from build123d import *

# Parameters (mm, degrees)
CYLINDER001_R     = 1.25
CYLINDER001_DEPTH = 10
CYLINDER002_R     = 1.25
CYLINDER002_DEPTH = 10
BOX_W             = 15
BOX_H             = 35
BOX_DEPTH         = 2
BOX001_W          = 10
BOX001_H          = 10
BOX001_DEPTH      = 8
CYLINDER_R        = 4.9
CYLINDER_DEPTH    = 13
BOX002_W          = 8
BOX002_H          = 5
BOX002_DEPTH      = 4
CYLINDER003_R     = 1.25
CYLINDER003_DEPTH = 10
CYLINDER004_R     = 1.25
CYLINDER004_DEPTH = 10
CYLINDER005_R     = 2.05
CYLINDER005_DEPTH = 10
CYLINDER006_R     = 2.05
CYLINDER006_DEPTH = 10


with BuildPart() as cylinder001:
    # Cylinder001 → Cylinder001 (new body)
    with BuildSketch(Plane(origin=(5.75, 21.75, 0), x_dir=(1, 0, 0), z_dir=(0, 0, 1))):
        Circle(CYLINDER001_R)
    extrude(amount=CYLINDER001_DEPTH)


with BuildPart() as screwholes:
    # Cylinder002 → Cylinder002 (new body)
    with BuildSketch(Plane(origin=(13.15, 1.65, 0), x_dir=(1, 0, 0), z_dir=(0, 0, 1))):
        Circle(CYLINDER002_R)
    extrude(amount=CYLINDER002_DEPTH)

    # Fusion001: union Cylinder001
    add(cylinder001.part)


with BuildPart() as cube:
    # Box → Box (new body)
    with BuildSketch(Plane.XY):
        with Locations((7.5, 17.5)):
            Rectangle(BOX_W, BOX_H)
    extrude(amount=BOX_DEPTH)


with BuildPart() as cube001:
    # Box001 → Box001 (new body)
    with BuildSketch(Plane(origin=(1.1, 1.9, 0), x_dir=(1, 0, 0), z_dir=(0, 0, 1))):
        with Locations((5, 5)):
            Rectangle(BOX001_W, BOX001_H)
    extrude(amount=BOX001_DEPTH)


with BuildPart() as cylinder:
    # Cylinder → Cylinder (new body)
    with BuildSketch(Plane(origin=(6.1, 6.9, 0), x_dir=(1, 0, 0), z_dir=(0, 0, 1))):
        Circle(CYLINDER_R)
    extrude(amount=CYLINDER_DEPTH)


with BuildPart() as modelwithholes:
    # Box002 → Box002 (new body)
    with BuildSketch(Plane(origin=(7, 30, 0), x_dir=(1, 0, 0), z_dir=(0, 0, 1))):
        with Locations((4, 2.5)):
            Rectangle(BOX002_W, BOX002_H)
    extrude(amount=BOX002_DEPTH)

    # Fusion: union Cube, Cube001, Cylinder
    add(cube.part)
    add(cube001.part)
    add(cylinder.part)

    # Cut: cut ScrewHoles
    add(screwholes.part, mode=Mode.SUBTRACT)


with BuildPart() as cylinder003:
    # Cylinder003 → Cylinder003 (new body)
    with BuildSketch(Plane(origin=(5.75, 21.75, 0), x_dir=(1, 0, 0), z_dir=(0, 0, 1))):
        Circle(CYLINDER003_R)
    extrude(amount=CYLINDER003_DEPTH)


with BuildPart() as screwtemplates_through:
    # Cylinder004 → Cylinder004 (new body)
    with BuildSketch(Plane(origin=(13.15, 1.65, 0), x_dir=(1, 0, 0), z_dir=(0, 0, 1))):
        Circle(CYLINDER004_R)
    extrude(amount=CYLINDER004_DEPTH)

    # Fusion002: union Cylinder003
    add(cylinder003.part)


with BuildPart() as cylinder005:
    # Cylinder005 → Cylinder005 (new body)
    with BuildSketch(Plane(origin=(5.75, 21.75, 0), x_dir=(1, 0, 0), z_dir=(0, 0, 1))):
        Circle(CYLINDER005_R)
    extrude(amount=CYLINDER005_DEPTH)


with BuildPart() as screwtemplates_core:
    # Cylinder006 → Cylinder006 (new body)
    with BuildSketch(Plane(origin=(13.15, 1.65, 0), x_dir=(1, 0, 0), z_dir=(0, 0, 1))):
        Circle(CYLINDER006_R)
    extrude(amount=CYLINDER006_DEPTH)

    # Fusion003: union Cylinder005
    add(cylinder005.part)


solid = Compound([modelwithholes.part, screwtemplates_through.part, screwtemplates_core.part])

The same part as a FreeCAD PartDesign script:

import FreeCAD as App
import Part
import Sketcher
from FreeCAD import Vector


def add_polygon(sketch, points):
    """Adds a closed chain of lines whose ends are joined by coincident constraints."""
    first, n = sketch.GeometryCount, len(points)
    for a, b in zip(points, points[1:] + points[:1]):
        sketch.addGeometry(Part.LineSegment(App.Vector(*a, 0), App.Vector(*b, 0)), False)
    for i in range(n):
        sketch.addConstraint(Sketcher.Constraint("Coincident", first + i, 2, first + (i + 1) % n, 1))

doc = App.newDocument("Part")
body = doc.addObject("PartDesign::Body", "Body")

sketch1 = doc.addObject("Sketcher::SketchObject", "Sketch")
body.addObject(sketch1)
sketch1.AttachmentSupport = (doc.XY_Plane, [""])
sketch1.MapMode = "FlatFace"
sketch1.addGeometry(Part.Circle(Vector(5.8, 21.8, 0), Vector(0, 0, 1), 1.2), False)
sketch1.addConstraint([
    Sketcher.Constraint("Diameter", 0, 2.5),
    Sketcher.Constraint("DistanceX", -1, 1, 0, 3, 5.75),
    Sketcher.Constraint("DistanceY", -1, 1, 0, 3, 21.75),
])
pad1 = doc.addObject("PartDesign::Pad", "Pad")
body.addObject(pad1)
pad1.Profile = sketch1
pad1.Length = 10
body2 = doc.addObject("PartDesign::Body", "Body001")
body2.AllowCompound = True

sketch2 = doc.addObject("Sketcher::SketchObject", "Sketch001")
body2.addObject(sketch2)
sketch2.AttachmentSupport = (doc.getObject("XY_Plane001"), [""])
sketch2.MapMode = "FlatFace"
sketch2.addGeometry(Part.Circle(Vector(13.2, 1.6, 0), Vector(0, 0, 1), 1.2), False)
sketch2.addConstraint([
    Sketcher.Constraint("Diameter", 0, 2.5),
    Sketcher.Constraint("DistanceX", -1, 1, 0, 3, 13.15),
    Sketcher.Constraint("DistanceY", -1, 1, 0, 3, 1.65),
])
pad2 = doc.addObject("PartDesign::Pad", "Pad001")
body2.addObject(pad2)
pad2.Profile = sketch2
pad2.Length = 10
doc.recompute()

boolean = doc.addObject("PartDesign::Boolean", "Boolean")
body2.addObject(boolean)
boolean.Type = "Fuse"
boolean.addObjects([body])
body3 = doc.addObject("PartDesign::Body", "Body002")

sketch3 = doc.addObject("Sketcher::SketchObject", "Sketch002")
body3.addObject(sketch3)
sketch3.AttachmentSupport = (doc.getObject("XY_Plane002"), [""])
sketch3.MapMode = "FlatFace"
add_polygon(sketch3, [(0, 35), (0, 0), (15, 0), (15, 35)])
sketch3.addConstraint([
    Sketcher.Constraint("Vertical", 0),
    Sketcher.Constraint("Horizontal", 1),
    Sketcher.Constraint("Vertical", 2),
    Sketcher.Constraint("Horizontal", 3),
    Sketcher.Constraint("Coincident", 0, 2, -1, 1),
    Sketcher.Constraint("DistanceX", 1, 1, 1, 2, 15.0),
    Sketcher.Constraint("DistanceY", 0, 2, 0, 1, 35.0),
])
pad3 = doc.addObject("PartDesign::Pad", "Pad002")
body3.addObject(pad3)
pad3.Profile = sketch3
pad3.Length = 2
body4 = doc.addObject("PartDesign::Body", "Body003")

sketch4 = doc.addObject("Sketcher::SketchObject", "Sketch003")
body4.addObject(sketch4)
sketch4.AttachmentSupport = (doc.getObject("XY_Plane003"), [""])
sketch4.MapMode = "FlatFace"
add_polygon(sketch4, [(1, 12), (1, 2), (11, 2), (11, 12)])
sketch4.addConstraint([
    Sketcher.Constraint("Vertical", 0),
    Sketcher.Constraint("Horizontal", 1),
    Sketcher.Constraint("Vertical", 2),
    Sketcher.Constraint("Horizontal", 3),
    Sketcher.Constraint("Equal", 3, 0),
    Sketcher.Constraint("DistanceX", 1, 1, 1, 2, 10.0),
    Sketcher.Constraint("DistanceX", -1, 1, 0, 2, 1.1),
    Sketcher.Constraint("DistanceY", -1, 1, 0, 2, 1.9),
])
pad4 = doc.addObject("PartDesign::Pad", "Pad003")
body4.addObject(pad4)
pad4.Profile = sketch4
pad4.Length = 8
body5 = doc.addObject("PartDesign::Body", "Body004")

sketch5 = doc.addObject("Sketcher::SketchObject", "Sketch004")
body5.addObject(sketch5)
sketch5.AttachmentSupport = (doc.getObject("XY_Plane004"), [""])
sketch5.MapMode = "FlatFace"
sketch5.addGeometry(Part.Circle(Vector(6.1, 6.9, 0), Vector(0, 0, 1), 4.9), False)
sketch5.addConstraint([
    Sketcher.Constraint("Diameter", 0, 9.8),
    Sketcher.Constraint("DistanceX", -1, 1, 0, 3, 6.1),
    Sketcher.Constraint("DistanceY", -1, 1, 0, 3, 6.9),
])
pad5 = doc.addObject("PartDesign::Pad", "Pad004")
body5.addObject(pad5)
pad5.Profile = sketch5
pad5.Length = 13
body6 = doc.addObject("PartDesign::Body", "Body005")

sketch6 = doc.addObject("Sketcher::SketchObject", "Sketch005")
body6.addObject(sketch6)
sketch6.AttachmentSupport = (doc.getObject("XY_Plane005"), [""])
sketch6.MapMode = "FlatFace"
add_polygon(sketch6, [(7, 35), (7, 30), (15, 30), (15, 35)])
sketch6.addConstraint([
    Sketcher.Constraint("Vertical", 0),
    Sketcher.Constraint("Horizontal", 1),
    Sketcher.Constraint("Vertical", 2),
    Sketcher.Constraint("Horizontal", 3),
    Sketcher.Constraint("DistanceX", 1, 1, 1, 2, 8.0),
    Sketcher.Constraint("DistanceY", 0, 2, 0, 1, 5.0),
    Sketcher.Constraint("DistanceX", -1, 1, 0, 2, 7.0),
    Sketcher.Constraint("DistanceY", -1, 1, 0, 2, 30.0),
])
pad6 = doc.addObject("PartDesign::Pad", "Pad005")
body6.addObject(pad6)
pad6.Profile = sketch6
pad6.Length = 4
doc.recompute()

boolean2 = doc.addObject("PartDesign::Boolean", "Boolean001")
body6.addObject(boolean2)
boolean2.Type = "Fuse"
boolean2.addObjects([body3])
doc.recompute()

boolean3 = doc.addObject("PartDesign::Boolean", "Boolean002")
body6.addObject(boolean3)
boolean3.Type = "Fuse"
boolean3.addObjects([body4])
doc.recompute()

boolean4 = doc.addObject("PartDesign::Boolean", "Boolean003")
body6.addObject(boolean4)
boolean4.Type = "Fuse"
boolean4.addObjects([body5])
doc.recompute()

boolean5 = doc.addObject("PartDesign::Boolean", "Boolean004")
body6.addObject(boolean5)
boolean5.Type = "Cut"
boolean5.addObjects([body2])
body7 = doc.addObject("PartDesign::Body", "Body006")

sketch7 = doc.addObject("Sketcher::SketchObject", "Sketch006")
body7.addObject(sketch7)
sketch7.AttachmentSupport = (doc.getObject("XY_Plane006"), [""])
sketch7.MapMode = "FlatFace"
sketch7.addGeometry(Part.Circle(Vector(5.8, 21.8, 0), Vector(0, 0, 1), 1.2), False)
sketch7.addConstraint([
    Sketcher.Constraint("Diameter", 0, 2.5),
    Sketcher.Constraint("DistanceX", -1, 1, 0, 3, 5.75),
    Sketcher.Constraint("DistanceY", -1, 1, 0, 3, 21.75),
])
pad7 = doc.addObject("PartDesign::Pad", "Pad006")
body7.addObject(pad7)
pad7.Profile = sketch7
pad7.Length = 10
body8 = doc.addObject("PartDesign::Body", "Body007")
body8.AllowCompound = True

sketch8 = doc.addObject("Sketcher::SketchObject", "Sketch007")
body8.addObject(sketch8)
sketch8.AttachmentSupport = (doc.getObject("XY_Plane007"), [""])
sketch8.MapMode = "FlatFace"
sketch8.addGeometry(Part.Circle(Vector(13.2, 1.6, 0), Vector(0, 0, 1), 1.2), False)
sketch8.addConstraint([
    Sketcher.Constraint("Diameter", 0, 2.5),
    Sketcher.Constraint("DistanceX", -1, 1, 0, 3, 13.15),
    Sketcher.Constraint("DistanceY", -1, 1, 0, 3, 1.65),
])
pad8 = doc.addObject("PartDesign::Pad", "Pad007")
body8.addObject(pad8)
pad8.Profile = sketch8
pad8.Length = 10
doc.recompute()

boolean6 = doc.addObject("PartDesign::Boolean", "Boolean005")
body8.addObject(boolean6)
boolean6.Type = "Fuse"
boolean6.addObjects([body7])
body9 = doc.addObject("PartDesign::Body", "Body008")

sketch9 = doc.addObject("Sketcher::SketchObject", "Sketch008")
body9.addObject(sketch9)
sketch9.AttachmentSupport = (doc.getObject("XY_Plane008"), [""])
sketch9.MapMode = "FlatFace"
sketch9.addGeometry(Part.Circle(Vector(5.8, 21.8, 0), Vector(0, 0, 1), 2), False)
sketch9.addConstraint([
    Sketcher.Constraint("Diameter", 0, 4.1),
    Sketcher.Constraint("DistanceX", -1, 1, 0, 3, 5.75),
    Sketcher.Constraint("DistanceY", -1, 1, 0, 3, 21.75),
])
pad9 = doc.addObject("PartDesign::Pad", "Pad008")
body9.addObject(pad9)
pad9.Profile = sketch9
pad9.Length = 10
body10 = doc.addObject("PartDesign::Body", "Body009")
body10.AllowCompound = True

sketch10 = doc.addObject("Sketcher::SketchObject", "Sketch009")
body10.addObject(sketch10)
sketch10.AttachmentSupport = (doc.getObject("XY_Plane009"), [""])
sketch10.MapMode = "FlatFace"
sketch10.addGeometry(Part.Circle(Vector(13.2, 1.6, 0), Vector(0, 0, 1), 2), False)
sketch10.addConstraint([
    Sketcher.Constraint("Diameter", 0, 4.1),
    Sketcher.Constraint("DistanceX", -1, 1, 0, 3, 13.15),
    Sketcher.Constraint("DistanceY", -1, 1, 0, 3, 1.65),
])
pad10 = doc.addObject("PartDesign::Pad", "Pad009")
body10.addObject(pad10)
pad10.Profile = sketch10
pad10.Length = 10
doc.recompute()

boolean7 = doc.addObject("PartDesign::Boolean", "Boolean006")
body10.addObject(boolean7)
boolean7.Type = "Fuse"
boolean7.addObjects([body9])

doc.recompute()
